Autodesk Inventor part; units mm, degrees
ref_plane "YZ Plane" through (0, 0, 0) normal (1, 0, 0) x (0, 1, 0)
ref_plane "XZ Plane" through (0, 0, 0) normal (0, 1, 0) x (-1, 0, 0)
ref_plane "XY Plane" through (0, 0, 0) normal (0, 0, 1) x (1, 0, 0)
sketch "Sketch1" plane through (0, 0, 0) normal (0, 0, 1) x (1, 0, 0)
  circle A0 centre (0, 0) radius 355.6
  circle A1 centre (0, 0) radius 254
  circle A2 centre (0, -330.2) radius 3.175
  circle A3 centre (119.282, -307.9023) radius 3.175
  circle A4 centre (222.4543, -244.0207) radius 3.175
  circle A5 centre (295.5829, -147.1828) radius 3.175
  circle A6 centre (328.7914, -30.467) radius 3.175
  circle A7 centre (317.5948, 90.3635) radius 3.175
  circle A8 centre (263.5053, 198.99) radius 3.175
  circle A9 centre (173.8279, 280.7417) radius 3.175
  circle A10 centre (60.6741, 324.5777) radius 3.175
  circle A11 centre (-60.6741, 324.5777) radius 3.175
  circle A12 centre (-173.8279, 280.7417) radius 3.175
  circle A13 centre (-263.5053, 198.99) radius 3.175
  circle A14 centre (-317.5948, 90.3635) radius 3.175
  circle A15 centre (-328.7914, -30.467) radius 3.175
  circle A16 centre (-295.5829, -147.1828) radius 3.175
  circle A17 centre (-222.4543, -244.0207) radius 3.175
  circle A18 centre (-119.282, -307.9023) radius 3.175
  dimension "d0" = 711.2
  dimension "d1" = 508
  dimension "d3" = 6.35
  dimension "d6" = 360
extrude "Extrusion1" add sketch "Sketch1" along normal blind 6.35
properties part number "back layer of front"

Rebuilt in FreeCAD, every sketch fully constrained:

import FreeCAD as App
import Part
import Sketcher
from FreeCAD import Vector
Q = App.Units.Quantity

doc = App.newDocument("Part")
body = doc.addObject("PartDesign::Body", "Body")

# Sketch on XY plane
sketch1 = body.newObject("Sketcher::SketchObject", "Sketch")
sketch1.AttachmentSupport = (doc.getObject("XY_Plane"), [""])
sketch1.MapMode = "FlatFace"
sketch1.addGeometry(Part.Circle(Vector(0, 0, 0), Vector(0, 0, 1), 355.6), False)
sketch1.addGeometry(Part.Circle(Vector(-222.5, -244, 0), Vector(0, 0, 1), 3.2), False)
sketch1.addGeometry(Part.Circle(Vector(-119.3, -307.9, 0), Vector(0, 0, 1), 3.2), False)
sketch1.addGeometry(Part.Circle(Vector(-295.6, -147.2, 0), Vector(0, 0, 1), 3.2), False)
sketch1.addGeometry(Part.Circle(Vector(-328.8, -30.5, 0), Vector(0, 0, 1), 3.2), False)
sketch1.addGeometry(Part.Circle(Vector(0, -330.2, 0), Vector(0, 0, 1), 3.2), False)
sketch1.addGeometry(Part.Circle(Vector(119.3, -307.9, 0), Vector(0, 0, 1), 3.2), False)
sketch1.addGeometry(Part.Circle(Vector(222.5, -244, 0), Vector(0, 0, 1), 3.2), False)
sketch1.addGeometry(Part.Circle(Vector(295.6, -147.2, 0), Vector(0, 0, 1), 3.2), False)
sketch1.addGeometry(Part.Circle(Vector(328.8, -30.5, 0), Vector(0, 0, 1), 3.2), False)
sketch1.addGeometry(Part.Circle(Vector(-317.6, 90.4, 0), Vector(0, 0, 1), 3.2), False)
sketch1.addGeometry(Part.Circle(Vector(-263.5, 199, 0), Vector(0, 0, 1), 3.2), False)
sketch1.addGeometry(Part.Circle(Vector(-173.8, 280.7, 0), Vector(0, 0, 1), 3.2), False)
sketch1.addGeometry(Part.Circle(Vector(-60.7, 324.6, 0), Vector(0, 0, 1), 3.2), False)
sketch1.addGeometry(Part.Circle(Vector(0, 0, 0), Vector(0, 0, 1), 254), False)
sketch1.addGeometry(Part.Circle(Vector(317.6, 90.4, 0), Vector(0, 0, 1), 3.2), False)
sketch1.addGeometry(Part.Circle(Vector(60.7, 324.6, 0), Vector(0, 0, 1), 3.2), False)
sketch1.addGeometry(Part.Circle(Vector(173.8, 280.7, 0), Vector(0, 0, 1), 3.2), False)
sketch1.addGeometry(Part.Circle(Vector(263.5, 199, 0), Vector(0, 0, 1), 3.2), False)
sketch1.addConstraint(Sketcher.Constraint("Coincident", 0, 3, -1, 1))
sketch1.addConstraint(Sketcher.Constraint("Coincident", 14, 3, -1, 1))
sketch1.addConstraint(Sketcher.Constraint("Equal", 1, 2))
sketch1.addConstraint(Sketcher.Constraint("Equal", 2, 3))
sketch1.addConstraint(Sketcher.Constraint("Equal", 3, 4))
sketch1.addConstraint(Sketcher.Constraint("Equal", 4, 5))
sketch1.addConstraint(Sketcher.Constraint("Equal", 5, 6))
sketch1.addConstraint(Sketcher.Constraint("Equal", 6, 7))
sketch1.addConstraint(Sketcher.Constraint("Equal", 7, 8))
sketch1.addConstraint(Sketcher.Constraint("Equal", 8, 9))
sketch1.addConstraint(Sketcher.Constraint("Equal", 9, 10))
sketch1.addConstraint(Sketcher.Constraint("Equal", 10, 11))
sketch1.addConstraint(Sketcher.Constraint("Equal", 11, 12))
sketch1.addConstraint(Sketcher.Constraint("Equal", 12, 13))
sketch1.addConstraint(Sketcher.Constraint("Equal", 13, 15))
sketch1.addConstraint(Sketcher.Constraint("Equal", 15, 16))
sketch1.addConstraint(Sketcher.Constraint("Equal", 16, 17))
sketch1.addConstraint(Sketcher.Constraint("Equal", 17, 18))
sketch1.addConstraint(Sketcher.Constraint("Symmetric", 2, 3, 6, 3, -2))
sketch1.addConstraint(Sketcher.Constraint("Symmetric", 1, 3, 7, 3, -2))
sketch1.addConstraint(Sketcher.Constraint("Symmetric", 3, 3, 8, 3, -2))
sketch1.addConstraint(Sketcher.Constraint("Symmetric", 4, 3, 9, 3, -2))
sketch1.addConstraint(Sketcher.Constraint("Symmetric", 10, 3, 15, 3, -2))
sketch1.addConstraint(Sketcher.Constraint("Symmetric", 13, 3, 16, 3, -2))
sketch1.addConstraint(Sketcher.Constraint("Symmetric", 12, 3, 17, 3, -2))
sketch1.addConstraint(Sketcher.Constraint("Symmetric", 11, 3, 18, 3, -2))
sketch1.addConstraint(Sketcher.Constraint("PointOnObject", 5, 3, -2))
sketch1.addConstraint(Sketcher.Constraint("Diameter", 0, Q("28 in")))
sketch1.addConstraint(Sketcher.Constraint("Diameter", 14, Q("20 in")))
sketch1.addConstraint(Sketcher.Constraint("Diameter", 1, Q("0.25 in")))
sketch1.addConstraint(Sketcher.Constraint("DistanceY", 5, 3, -1, 1, Q("13 in")))
sketch1.addConstraint(Sketcher.Constraint("DistanceX", 10, 3, 13, 3, Q("10.115 in")))
sketch1.addConstraint(Sketcher.Constraint("DistanceY", 3, 3, -1, 1, Q("5.7946 in")))
sketch1.addConstraint(Sketcher.Constraint("DistanceY", 4, 3, -1, 1, Q("1.1995 in")))
sketch1.addConstraint(Sketcher.Constraint("DistanceX", 1, 3, 2, 3, Q("4.0619 in")))
sketch1.addConstraint(Sketcher.Constraint("DistanceX", 4, 3, 1, 3, Q("4.1865 in")))
sketch1.addConstraint(Sketcher.Constraint("DistanceX", 4, 3, 10, 3, Q("0.4408 in")))
sketch1.addConstraint(Sketcher.Constraint("DistanceY", 4, 3, 10, 3, Q("4.7571 in")))
sketch1.addConstraint(Sketcher.Constraint("DistanceX", 10, 3, 3, 3, Q("0.8666 in")))
sketch1.addConstraint(Sketcher.Constraint("DistanceX", 10, 3, 11, 3, Q("2.1295 in")))
sketch1.addConstraint(Sketcher.Constraint("DistanceX", 11, 3, 12, 3, Q("3.5306 in")))
sketch1.addConstraint(Sketcher.Constraint("DistanceY", 10, 3, 12, 3, Q("7.4952 in")))
sketch1.addConstraint(Sketcher.Constraint("DistanceY", 11, 3, 13, 3, Q("4.9444 in")))
sketch1.addConstraint(Sketcher.Constraint("DistanceX", 13, 3, 16, 3, Q("4.7775 in")))
sketch1.addConstraint(Sketcher.Constraint("DistanceY", 1, 3, -1, 1, Q("244.0207 mm")))
sketch1.addConstraint(Sketcher.Constraint("DistanceY", 2, 3, -1, 1, Q("307.9023 mm")))
sketch1.addConstraint(Sketcher.Constraint("DistanceY", -1, 1, 11, 3, Q("198.99 mm")))
pad1 = body.newObject("PartDesign::Pad", "Pad")
pad1.Profile = sketch1
pad1.Length = Q("0.25 in")

doc.recompute()
